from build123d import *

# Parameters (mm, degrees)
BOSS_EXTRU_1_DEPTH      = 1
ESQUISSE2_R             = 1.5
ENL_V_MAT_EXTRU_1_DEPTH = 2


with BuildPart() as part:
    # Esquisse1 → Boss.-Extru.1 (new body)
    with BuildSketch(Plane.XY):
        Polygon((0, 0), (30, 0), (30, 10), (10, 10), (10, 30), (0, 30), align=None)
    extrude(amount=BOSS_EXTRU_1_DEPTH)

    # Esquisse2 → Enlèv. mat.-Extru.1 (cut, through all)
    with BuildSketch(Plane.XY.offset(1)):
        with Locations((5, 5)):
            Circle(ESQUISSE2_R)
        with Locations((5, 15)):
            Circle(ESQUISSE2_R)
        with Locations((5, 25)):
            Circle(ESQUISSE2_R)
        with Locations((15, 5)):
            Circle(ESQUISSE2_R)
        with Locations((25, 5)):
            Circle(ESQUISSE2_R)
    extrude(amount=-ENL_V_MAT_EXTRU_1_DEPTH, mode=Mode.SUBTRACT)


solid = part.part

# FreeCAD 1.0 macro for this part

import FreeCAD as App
import Part
import Sketcher
from FreeCAD import Vector

doc = App.newDocument("Part")
body = doc.addObject("PartDesign::Body", "Body")

# Sketch on XY plane
sketch1 = doc.addObject("Sketcher::SketchObject", "Sketch")
body.addObject(sketch1)
sketch1.AttachmentSupport = (doc.XY_Plane, [""])
sketch1.MapMode = "FlatFace"
sketch1.addGeometry([
    Part.LineSegment(Vector(0, 0, 0), Vector(30, 0, 0)),  # 0
    Part.LineSegment(Vector(30, 0, 0), Vector(30, 10, 0)),  # 1
    Part.LineSegment(Vector(30, 10, 0), Vector(10, 10, 0)),  # 2
    Part.LineSegment(Vector(10, 10, 0), Vector(10, 30, 0)),  # 3
    Part.LineSegment(Vector(10, 30, 0), Vector(0, 30, 0)),  # 4
    Part.LineSegment(Vector(0, 30, 0), Vector(0, 0, 0)),  # 5
], False)
sketch1.addConstraint([
    Sketcher.Constraint("Coincident", 0, 2, 1, 1),
    Sketcher.Constraint("Coincident", 1, 2, 2, 1),
    Sketcher.Constraint("Coincident", 2, 2, 3, 1),
    Sketcher.Constraint("Coincident", 3, 2, 4, 1),
    Sketcher.Constraint("Coincident", 4, 2, 5, 1),
    Sketcher.Constraint("Coincident", 5, 2, 0, 1),
    Sketcher.Constraint("Horizontal", 0),
    Sketcher.Constraint("Vertical", 1),
    Sketcher.Constraint("Horizontal", 2),
    Sketcher.Constraint("Vertical", 3),
    Sketcher.Constraint("Horizontal", 4),
    Sketcher.Constraint("Vertical", 5),
    Sketcher.Constraint("Coincident", 5, 2, -1, 1),
    Sketcher.Constraint("Equal", 4, 1),
    Sketcher.Constraint("Equal", 2, 3),
    Sketcher.Constraint("DistanceX", 0, 1, 0, 2, 30.0),
    Sketcher.Constraint("DistanceX", 2, 2, 2, 1, 20.0),
])
pad1 = doc.addObject("PartDesign::Pad", "Pad")
body.addObject(pad1)
pad1.Profile = sketch1
pad1.Length = 1

# Sketch on XY plane
sketch2 = doc.addObject("Sketcher::SketchObject", "Sketch001")
body.addObject(sketch2)
sketch2.AttachmentSupport = (doc.XY_Plane, [""])
sketch2.MapMode = "FlatFace"
sketch2.AttachmentOffset = App.Placement(Vector(0, 0, 1), App.Rotation())
sketch2.addGeometry([
    Part.Circle(Vector(5, 5, 0), Vector(0, 0, 1), 1.5),  # 0
    Part.Circle(Vector(5, 15, 0), Vector(0, 0, 1), 1.5),  # 1
    Part.Circle(Vector(5, 25, 0), Vector(0, 0, 1), 1.5),  # 2
    Part.Circle(Vector(15, 5, 0), Vector(0, 0, 1), 1.5),  # 3
    Part.Circle(Vector(25, 5, 0), Vector(0, 0, 1), 1.5),  # 4
], False)
sketch2.addConstraint([
    Sketcher.Constraint("Equal", 0, 1),
    Sketcher.Constraint("Equal", 1, 2),
    Sketcher.Constraint("Equal", 2, 3),
    Sketcher.Constraint("Equal", 3, 4),
    Sketcher.Constraint("Horizontal", 0, 3, 3, 3),
    Sketcher.Constraint("Horizontal", 3, 3, 4, 3),
    Sketcher.Constraint("Vertical", 0, 3, 1, 3),
    Sketcher.Constraint("Vertical", 1, 3, 2, 3),
    Sketcher.Constraint("Diameter", 0, 3.0),
    Sketcher.Constraint("DistanceX", -1, 1, 0, 3, 5.0),
    Sketcher.Constraint("DistanceY", -1, 1, 0, 3, 5.0),
    Sketcher.Constraint("DistanceY", -1, 1, 1, 3, 15.0),
    Sketcher.Constraint("DistanceY", -1, 1, 2, 3, 25.0),
    Sketcher.Constraint("DistanceX", -1, 1, 3, 3, 15.0),
    Sketcher.Constraint("DistanceX", -1, 1, 4, 3, 25.0),
])
pocket1 = doc.addObject("PartDesign::Pocket", "Pocket")
body.addObject(pocket1)
pocket1.Profile = sketch2
pocket1.Type = "ThroughAll"

doc.recompute()
